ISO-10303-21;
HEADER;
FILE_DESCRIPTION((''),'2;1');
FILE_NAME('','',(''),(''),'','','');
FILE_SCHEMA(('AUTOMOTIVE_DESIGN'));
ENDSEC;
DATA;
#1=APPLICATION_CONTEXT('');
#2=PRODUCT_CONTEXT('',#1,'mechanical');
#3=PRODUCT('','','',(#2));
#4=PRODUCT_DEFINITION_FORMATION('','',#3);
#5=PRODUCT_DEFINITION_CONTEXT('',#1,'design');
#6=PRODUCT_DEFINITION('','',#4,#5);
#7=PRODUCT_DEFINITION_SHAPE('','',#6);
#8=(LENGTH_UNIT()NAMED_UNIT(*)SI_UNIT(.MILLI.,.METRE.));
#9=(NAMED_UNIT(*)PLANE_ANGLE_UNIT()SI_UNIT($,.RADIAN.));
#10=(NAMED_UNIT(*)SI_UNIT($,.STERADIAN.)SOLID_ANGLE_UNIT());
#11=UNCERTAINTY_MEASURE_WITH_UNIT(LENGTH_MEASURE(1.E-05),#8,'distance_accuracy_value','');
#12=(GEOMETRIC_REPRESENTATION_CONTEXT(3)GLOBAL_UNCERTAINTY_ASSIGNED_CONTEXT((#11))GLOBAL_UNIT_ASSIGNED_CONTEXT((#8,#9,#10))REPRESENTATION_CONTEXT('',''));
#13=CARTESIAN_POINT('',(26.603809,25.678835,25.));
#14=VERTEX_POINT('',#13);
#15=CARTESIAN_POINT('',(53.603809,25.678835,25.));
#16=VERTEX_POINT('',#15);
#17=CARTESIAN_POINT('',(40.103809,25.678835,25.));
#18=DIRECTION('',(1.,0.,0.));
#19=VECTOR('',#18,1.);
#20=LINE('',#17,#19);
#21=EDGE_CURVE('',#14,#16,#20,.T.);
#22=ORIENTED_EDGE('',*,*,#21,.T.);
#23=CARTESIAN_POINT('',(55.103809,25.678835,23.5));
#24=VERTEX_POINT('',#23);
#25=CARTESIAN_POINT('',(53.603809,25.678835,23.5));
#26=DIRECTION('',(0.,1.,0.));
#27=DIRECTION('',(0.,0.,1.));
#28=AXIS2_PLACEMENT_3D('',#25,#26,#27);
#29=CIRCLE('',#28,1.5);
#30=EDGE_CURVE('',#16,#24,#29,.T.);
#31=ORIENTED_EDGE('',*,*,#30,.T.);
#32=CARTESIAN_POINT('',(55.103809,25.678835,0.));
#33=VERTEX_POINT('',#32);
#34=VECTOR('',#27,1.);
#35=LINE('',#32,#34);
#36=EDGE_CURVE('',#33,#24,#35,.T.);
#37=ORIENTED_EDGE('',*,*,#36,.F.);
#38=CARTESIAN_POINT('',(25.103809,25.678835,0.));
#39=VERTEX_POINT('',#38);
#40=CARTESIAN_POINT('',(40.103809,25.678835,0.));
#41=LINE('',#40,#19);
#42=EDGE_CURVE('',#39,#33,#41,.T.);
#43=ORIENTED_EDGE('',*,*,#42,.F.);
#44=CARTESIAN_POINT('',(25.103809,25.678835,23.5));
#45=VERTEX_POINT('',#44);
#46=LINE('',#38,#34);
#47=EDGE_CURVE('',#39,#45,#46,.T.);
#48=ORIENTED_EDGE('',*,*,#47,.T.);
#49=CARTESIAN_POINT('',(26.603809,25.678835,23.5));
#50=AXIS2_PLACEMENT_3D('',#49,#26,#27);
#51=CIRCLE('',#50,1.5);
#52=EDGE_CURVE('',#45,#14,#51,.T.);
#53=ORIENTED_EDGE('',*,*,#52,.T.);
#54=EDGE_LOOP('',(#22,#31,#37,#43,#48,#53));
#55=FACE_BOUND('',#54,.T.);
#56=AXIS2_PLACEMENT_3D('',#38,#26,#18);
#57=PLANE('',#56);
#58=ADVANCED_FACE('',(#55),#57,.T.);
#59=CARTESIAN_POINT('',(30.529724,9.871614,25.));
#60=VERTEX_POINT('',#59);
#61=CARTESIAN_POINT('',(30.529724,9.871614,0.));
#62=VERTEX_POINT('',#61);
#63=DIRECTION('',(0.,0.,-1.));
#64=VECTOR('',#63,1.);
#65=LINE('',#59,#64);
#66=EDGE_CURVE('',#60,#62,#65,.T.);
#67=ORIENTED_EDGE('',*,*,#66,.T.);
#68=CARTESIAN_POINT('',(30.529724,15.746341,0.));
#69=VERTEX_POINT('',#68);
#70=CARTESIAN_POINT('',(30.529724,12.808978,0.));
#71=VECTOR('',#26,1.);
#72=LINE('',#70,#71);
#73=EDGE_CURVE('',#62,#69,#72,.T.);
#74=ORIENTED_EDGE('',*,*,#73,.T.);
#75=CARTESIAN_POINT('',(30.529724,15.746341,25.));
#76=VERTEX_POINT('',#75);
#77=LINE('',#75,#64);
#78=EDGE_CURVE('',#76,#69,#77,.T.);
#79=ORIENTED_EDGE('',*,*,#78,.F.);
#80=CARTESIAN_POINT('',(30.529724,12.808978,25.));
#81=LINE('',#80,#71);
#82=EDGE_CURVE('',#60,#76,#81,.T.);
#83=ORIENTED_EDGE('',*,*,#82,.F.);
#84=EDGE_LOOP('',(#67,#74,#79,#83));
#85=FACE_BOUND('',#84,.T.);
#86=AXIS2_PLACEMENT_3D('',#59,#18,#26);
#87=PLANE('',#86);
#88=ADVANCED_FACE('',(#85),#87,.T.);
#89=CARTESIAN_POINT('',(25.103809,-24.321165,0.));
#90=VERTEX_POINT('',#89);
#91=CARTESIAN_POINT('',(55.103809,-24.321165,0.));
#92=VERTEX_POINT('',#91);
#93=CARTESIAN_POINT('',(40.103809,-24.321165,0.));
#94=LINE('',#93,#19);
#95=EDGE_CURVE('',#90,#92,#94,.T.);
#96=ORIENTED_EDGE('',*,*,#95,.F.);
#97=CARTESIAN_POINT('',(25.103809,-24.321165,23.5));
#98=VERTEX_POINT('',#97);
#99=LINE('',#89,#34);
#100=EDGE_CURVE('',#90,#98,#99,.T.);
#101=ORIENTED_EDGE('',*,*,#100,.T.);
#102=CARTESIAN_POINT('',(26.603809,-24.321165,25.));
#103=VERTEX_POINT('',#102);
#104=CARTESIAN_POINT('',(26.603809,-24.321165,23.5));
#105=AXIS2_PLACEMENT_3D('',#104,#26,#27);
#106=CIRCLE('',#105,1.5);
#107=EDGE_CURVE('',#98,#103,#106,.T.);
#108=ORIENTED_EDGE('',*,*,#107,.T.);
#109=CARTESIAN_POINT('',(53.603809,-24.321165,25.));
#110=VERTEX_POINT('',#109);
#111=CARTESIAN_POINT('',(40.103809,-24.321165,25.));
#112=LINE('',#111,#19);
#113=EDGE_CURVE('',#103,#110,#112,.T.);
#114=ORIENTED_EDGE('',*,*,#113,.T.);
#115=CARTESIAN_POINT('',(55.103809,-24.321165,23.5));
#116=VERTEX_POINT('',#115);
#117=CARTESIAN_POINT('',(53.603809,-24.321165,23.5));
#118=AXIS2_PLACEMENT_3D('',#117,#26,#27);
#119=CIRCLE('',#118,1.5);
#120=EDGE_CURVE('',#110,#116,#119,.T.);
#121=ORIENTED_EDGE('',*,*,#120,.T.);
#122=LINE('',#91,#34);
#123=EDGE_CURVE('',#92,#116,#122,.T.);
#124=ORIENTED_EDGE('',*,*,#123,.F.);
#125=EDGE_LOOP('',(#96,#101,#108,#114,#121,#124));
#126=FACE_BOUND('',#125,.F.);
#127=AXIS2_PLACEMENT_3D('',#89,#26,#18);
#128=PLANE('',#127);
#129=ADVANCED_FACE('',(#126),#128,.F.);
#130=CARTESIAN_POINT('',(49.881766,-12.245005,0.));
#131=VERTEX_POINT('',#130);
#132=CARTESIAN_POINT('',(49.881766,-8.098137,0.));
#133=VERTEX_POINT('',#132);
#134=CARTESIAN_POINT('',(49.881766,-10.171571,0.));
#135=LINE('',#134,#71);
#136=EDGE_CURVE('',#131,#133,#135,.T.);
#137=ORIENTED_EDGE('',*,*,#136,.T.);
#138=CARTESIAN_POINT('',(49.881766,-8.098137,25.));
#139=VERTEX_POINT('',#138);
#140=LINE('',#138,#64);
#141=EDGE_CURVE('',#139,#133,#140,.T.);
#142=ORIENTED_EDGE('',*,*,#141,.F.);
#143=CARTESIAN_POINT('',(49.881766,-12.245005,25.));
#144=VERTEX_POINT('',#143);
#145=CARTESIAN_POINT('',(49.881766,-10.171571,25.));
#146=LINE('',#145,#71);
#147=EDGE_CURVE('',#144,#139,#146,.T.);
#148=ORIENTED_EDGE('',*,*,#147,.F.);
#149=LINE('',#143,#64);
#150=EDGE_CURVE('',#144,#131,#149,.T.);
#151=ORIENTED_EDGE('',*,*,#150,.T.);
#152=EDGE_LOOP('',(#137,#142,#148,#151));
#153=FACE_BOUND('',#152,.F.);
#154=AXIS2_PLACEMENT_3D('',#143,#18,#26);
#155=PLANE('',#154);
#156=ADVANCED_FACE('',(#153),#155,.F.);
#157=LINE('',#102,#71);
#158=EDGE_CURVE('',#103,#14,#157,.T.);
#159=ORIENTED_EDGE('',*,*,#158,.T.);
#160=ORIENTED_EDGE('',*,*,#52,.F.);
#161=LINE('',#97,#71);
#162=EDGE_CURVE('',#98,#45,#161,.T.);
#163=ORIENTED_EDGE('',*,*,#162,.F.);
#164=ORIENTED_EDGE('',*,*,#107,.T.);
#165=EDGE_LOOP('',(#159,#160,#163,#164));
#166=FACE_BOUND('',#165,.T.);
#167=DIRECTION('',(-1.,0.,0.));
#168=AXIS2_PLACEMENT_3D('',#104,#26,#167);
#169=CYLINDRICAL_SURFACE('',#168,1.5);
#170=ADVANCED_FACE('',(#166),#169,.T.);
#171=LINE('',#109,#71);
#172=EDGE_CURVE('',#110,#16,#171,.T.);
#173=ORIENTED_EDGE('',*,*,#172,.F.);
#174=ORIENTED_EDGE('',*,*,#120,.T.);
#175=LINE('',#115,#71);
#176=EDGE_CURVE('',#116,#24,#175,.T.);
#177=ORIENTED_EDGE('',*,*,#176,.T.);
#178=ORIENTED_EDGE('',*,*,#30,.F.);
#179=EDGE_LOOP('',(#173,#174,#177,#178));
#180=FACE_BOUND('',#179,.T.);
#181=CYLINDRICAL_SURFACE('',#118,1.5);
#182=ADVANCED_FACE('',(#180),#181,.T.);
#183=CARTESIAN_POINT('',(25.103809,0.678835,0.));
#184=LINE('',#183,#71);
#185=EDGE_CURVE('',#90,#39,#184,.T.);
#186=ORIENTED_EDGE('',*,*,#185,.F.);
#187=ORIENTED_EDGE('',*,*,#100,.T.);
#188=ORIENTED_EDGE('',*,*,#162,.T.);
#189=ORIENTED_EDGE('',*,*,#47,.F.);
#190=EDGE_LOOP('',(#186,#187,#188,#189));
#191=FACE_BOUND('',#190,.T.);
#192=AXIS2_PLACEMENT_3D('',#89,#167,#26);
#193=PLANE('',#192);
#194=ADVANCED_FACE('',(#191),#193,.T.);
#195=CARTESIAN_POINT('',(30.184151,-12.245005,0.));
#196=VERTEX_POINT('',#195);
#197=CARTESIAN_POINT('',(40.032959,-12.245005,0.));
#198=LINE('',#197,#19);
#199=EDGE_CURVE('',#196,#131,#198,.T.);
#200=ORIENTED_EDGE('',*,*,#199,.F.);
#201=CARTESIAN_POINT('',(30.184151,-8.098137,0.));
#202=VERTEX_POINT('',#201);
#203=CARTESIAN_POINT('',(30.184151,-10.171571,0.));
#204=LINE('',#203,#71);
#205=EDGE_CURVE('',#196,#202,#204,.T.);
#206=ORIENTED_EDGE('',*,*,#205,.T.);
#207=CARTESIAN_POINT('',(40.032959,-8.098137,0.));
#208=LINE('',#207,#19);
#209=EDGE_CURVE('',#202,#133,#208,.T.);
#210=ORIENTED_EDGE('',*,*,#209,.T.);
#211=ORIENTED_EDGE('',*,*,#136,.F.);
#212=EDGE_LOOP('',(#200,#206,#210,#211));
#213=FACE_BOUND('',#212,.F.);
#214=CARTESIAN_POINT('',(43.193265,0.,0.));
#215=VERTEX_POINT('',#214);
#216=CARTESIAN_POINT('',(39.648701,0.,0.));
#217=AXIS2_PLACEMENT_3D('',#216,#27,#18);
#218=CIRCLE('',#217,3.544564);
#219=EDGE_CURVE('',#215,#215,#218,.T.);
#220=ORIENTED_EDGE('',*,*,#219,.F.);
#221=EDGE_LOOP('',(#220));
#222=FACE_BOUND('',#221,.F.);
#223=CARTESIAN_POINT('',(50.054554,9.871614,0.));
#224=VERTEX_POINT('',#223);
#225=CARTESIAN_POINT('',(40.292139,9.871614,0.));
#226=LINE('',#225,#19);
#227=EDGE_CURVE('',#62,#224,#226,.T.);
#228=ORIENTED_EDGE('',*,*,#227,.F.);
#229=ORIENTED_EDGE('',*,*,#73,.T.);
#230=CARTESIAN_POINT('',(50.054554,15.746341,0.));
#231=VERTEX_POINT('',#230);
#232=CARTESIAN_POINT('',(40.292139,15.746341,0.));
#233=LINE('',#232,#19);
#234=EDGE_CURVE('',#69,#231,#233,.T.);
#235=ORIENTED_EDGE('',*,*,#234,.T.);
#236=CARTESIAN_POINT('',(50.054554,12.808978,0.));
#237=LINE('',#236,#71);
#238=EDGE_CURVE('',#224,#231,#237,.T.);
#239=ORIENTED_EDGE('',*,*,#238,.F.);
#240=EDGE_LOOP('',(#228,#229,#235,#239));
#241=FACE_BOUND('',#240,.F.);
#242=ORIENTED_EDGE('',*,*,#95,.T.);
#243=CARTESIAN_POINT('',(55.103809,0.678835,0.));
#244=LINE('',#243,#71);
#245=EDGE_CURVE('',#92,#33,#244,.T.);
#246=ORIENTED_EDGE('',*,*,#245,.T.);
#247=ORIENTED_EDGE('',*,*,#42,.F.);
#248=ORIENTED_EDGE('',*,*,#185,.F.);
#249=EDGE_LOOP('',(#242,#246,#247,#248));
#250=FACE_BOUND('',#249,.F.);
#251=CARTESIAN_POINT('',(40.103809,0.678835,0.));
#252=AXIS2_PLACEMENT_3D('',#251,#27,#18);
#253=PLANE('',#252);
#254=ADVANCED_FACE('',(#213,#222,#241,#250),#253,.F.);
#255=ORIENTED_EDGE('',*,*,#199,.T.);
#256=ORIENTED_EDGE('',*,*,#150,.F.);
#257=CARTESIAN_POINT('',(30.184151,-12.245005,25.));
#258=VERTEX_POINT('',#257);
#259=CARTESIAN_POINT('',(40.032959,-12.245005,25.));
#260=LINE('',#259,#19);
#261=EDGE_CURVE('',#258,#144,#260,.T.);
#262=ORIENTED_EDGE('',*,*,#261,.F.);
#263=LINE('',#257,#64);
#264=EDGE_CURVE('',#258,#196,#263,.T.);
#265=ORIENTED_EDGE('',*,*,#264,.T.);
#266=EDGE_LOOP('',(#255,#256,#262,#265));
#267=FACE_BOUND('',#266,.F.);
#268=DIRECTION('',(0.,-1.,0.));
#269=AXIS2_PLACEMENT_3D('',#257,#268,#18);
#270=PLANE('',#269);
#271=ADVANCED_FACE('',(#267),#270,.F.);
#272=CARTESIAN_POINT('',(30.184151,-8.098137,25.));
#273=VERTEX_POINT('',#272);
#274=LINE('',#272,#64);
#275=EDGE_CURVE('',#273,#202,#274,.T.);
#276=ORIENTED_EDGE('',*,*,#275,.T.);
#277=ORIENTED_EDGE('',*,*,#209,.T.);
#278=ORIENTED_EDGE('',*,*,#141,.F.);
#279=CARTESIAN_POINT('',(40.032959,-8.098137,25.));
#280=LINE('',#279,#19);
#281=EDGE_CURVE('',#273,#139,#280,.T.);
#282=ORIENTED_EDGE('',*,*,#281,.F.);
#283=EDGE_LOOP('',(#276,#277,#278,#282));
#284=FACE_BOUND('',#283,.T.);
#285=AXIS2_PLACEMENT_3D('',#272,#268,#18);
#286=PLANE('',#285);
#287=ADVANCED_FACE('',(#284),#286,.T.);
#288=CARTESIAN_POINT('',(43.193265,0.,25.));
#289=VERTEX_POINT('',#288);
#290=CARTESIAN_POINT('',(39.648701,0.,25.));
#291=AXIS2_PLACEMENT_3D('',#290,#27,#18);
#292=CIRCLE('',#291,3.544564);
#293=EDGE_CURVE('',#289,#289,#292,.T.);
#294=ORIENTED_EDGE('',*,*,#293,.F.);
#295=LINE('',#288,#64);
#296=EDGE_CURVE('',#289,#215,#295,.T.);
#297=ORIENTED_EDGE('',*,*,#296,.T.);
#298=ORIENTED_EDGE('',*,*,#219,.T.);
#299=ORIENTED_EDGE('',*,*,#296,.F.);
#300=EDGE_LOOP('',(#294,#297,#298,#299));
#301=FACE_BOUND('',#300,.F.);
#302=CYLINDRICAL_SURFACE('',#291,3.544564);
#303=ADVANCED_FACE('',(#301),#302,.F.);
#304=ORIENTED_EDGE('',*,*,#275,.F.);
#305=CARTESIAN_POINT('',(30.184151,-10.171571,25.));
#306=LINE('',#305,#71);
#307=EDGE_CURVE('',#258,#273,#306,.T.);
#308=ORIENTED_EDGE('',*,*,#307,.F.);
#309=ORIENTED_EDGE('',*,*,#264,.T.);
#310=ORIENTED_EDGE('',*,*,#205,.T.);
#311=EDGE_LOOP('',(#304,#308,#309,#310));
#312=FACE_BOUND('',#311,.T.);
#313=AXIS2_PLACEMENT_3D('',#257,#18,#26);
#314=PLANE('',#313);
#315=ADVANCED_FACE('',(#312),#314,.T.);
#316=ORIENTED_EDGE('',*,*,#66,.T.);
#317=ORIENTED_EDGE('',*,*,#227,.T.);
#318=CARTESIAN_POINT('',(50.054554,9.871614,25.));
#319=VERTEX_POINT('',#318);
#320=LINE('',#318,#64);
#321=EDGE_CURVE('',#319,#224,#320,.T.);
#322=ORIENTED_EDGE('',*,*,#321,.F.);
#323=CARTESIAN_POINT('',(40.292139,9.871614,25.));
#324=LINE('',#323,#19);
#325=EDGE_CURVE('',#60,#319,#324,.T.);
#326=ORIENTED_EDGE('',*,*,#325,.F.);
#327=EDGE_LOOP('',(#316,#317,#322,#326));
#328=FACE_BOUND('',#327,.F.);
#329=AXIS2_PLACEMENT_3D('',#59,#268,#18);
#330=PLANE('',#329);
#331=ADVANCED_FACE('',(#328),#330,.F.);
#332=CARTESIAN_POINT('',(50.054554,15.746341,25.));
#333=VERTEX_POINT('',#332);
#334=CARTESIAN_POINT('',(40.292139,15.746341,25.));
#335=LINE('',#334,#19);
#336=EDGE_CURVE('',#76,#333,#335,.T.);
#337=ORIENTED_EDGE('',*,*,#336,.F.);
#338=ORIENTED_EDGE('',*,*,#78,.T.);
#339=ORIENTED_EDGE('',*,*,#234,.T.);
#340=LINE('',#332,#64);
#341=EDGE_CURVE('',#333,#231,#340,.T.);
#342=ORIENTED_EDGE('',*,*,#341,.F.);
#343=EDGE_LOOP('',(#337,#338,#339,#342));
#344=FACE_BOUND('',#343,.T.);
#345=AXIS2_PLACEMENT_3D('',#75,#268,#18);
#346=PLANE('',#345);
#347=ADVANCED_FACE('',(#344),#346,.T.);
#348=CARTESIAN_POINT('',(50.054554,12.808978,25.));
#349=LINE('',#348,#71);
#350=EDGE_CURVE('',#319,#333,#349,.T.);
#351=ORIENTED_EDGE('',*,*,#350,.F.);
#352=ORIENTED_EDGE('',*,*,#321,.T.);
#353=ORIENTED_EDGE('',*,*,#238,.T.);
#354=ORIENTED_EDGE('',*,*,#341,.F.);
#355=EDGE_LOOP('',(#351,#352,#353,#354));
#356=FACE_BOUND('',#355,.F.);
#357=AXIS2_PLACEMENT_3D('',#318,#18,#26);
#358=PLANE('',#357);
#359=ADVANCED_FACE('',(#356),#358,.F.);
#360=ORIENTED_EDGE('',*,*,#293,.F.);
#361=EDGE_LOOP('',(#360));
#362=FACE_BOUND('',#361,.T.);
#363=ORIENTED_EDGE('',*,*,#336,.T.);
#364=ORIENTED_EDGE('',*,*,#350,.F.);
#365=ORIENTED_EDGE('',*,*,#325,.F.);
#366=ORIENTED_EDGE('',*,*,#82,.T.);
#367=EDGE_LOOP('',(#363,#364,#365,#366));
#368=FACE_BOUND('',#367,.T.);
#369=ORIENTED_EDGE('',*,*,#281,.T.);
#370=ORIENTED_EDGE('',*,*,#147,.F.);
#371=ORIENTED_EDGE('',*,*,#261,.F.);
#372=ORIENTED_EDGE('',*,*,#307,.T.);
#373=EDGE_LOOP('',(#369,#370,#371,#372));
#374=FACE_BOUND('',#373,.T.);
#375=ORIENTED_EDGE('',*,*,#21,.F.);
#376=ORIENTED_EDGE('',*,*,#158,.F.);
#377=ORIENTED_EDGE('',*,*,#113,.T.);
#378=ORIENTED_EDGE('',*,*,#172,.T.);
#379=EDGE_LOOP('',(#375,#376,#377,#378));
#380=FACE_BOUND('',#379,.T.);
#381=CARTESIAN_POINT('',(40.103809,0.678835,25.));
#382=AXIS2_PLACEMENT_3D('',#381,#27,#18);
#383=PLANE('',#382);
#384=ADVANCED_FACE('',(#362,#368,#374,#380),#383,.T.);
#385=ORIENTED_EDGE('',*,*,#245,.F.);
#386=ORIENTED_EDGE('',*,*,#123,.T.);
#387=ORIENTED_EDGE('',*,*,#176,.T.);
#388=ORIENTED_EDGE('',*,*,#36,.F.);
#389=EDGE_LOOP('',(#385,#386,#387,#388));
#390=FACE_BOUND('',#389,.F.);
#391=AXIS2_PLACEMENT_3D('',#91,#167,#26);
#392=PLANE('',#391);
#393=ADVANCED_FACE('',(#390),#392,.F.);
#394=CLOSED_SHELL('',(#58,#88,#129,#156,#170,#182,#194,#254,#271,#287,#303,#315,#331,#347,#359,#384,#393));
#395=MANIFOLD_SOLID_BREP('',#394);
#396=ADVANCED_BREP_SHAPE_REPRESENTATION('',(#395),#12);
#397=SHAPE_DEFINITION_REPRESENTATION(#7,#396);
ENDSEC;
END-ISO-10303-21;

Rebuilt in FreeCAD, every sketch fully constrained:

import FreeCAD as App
import Part
import Sketcher

V = App.Vector
Q = App.Units.Quantity


def edges_at(feature, points):
    """Names of the edges that pass closest to the given points."""
    edges = feature.Shape.Edges
    near = lambda p: min(range(len(edges)), key=lambda i: edges[i].distToShape(Part.Vertex(*p))[0])
    return sorted({f"Edge{near(p) + 1}" for p in points})


def add_polygon(sketch, points):
    """Adds a closed chain of lines whose ends are joined by coincident constraints."""
    first, n = sketch.GeometryCount, len(points)
    for a, b in zip(points, points[1:] + points[:1]):
        sketch.addGeometry(Part.LineSegment(App.Vector(*a, 0), App.Vector(*b, 0)), False)
    for i in range(n):
        sketch.addConstraint(Sketcher.Constraint("Coincident", first + i, 2, first + (i + 1) % n, 1))

doc = App.newDocument("Part")
params = doc.addObject("Spreadsheet::Sheet", "Params")
for row, (alias, value) in enumerate([
    ("sketch1_width", "30 mm"),
    ("sketch1_height", "50 mm"),
    ("pad1_length", "25 mm"),
    ("pad2_length", "10 mm"),
    ("pad3_length", "10 mm"),
    ("pocket1_length", "25 mm"),
    ("pocket2_length", "25 mm"),
    ("fillet_radius", "1.5 mm"),
    ("pocket3_length", "25 mm"),
], start=1):
    params.set(f"A{row}", alias)
    params.set(f"B{row}", "=" + value)
    params.setAlias(f"B{row}", alias)

body = doc.addObject("PartDesign::Body", "Body")

# Sketch on XY plane
sketch1 = doc.addObject("Sketcher::SketchObject", "Sketch")
body.addObject(sketch1)
sketch1.AttachmentSupport = (doc.XY_Plane, [""])
sketch1.MapMode = "FlatFace"
add_polygon(sketch1, [(25, 26), (25, -24), (55, -24), (55, 26)])  # lines 0-3
sketch1.addConstraint([
    Sketcher.Constraint("Vertical", 0),
    Sketcher.Constraint("Horizontal", 1),
    Sketcher.Constraint("Vertical", 2),
    Sketcher.Constraint("Horizontal", 3),
    Sketcher.Constraint("DistanceX", 1, 1, 1, 2, Q("30 mm")),
    Sketcher.Constraint("DistanceY", 0, 2, 0, 1, Q("50 mm")),
    Sketcher.Constraint("DistanceX", -1, 1, 0, 2, Q("25.103809 mm")),
    Sketcher.Constraint("DistanceY", 0, 2, -1, 1, Q("24.321165 mm")),
])
sketch1.setExpression("Constraints[8]", "Params.sketch1_width")
sketch1.setExpression("Constraints[9]", "Params.sketch1_height")
pad1 = doc.addObject("PartDesign::Pad", "Pad")
body.addObject(pad1)
pad1.Profile = sketch1
pad1.setExpression("Length", "Params.pad1_length")

# Sketch on XY plane
sketch2 = doc.addObject("Sketcher::SketchObject", "Sketch001")
body.addObject(sketch2)
sketch2.AttachmentSupport = (doc.XY_Plane, [""])
sketch2.MapMode = "FlatFace"
sketch2.AttachmentOffset = App.Placement(V(0, 0, 25), App.Rotation())
add_polygon(sketch2, [(30.2, -8.1), (30.2, -12.2), (49.9, -12.2), (49.9, -8.1)])  # lines 0-3
add_polygon(sketch2, [(30.5, 15.7), (30.5, 9.9), (50.1, 9.9), (50.1, 15.7)])  # lines 4-7
sketch2.addConstraint([
    Sketcher.Constraint("Vertical", 0),
    Sketcher.Constraint("Horizontal", 1),
    Sketcher.Constraint("Vertical", 2),
    Sketcher.Constraint("Horizontal", 3),
    Sketcher.Constraint("Vertical", 4),
    Sketcher.Constraint("Horizontal", 5),
    Sketcher.Constraint("Vertical", 6),
    Sketcher.Constraint("Horizontal", 7),
    Sketcher.Constraint("DistanceX", 5, 1, 5, 2, Q("19.52483 mm")),
    Sketcher.Constraint("DistanceX", 1, 1, 1, 2, Q("19.697615 mm")),
    Sketcher.Constraint("DistanceY", 0, 2, 0, 1, Q("4.146867 mm")),
    Sketcher.Constraint("DistanceY", 4, 2, 4, 1, Q("5.874727 mm")),
    Sketcher.Constraint("DistanceX", -1, 1, 0, 2, Q("30.184151 mm")),
    Sketcher.Constraint("DistanceY", -1, 1, 6, 2, Q("15.746341 mm")),
    Sketcher.Constraint("DistanceY", 3, 2, 4, 2, Q("17.969752 mm")),
    Sketcher.Constraint("DistanceX", -1, 1, 4, 2, Q("30.529724 mm")),
])
pad2 = doc.addObject("PartDesign::Pad", "Pad001")
body.addObject(pad2)
pad2.Profile = sketch2
pad2.setExpression("Length", "Params.pad2_length")
pad2.Reversed = True

# Sketch on XY plane
sketch3 = doc.addObject("Sketcher::SketchObject", "Sketch002")
body.addObject(sketch3)
sketch3.AttachmentSupport = (doc.XY_Plane, [""])
sketch3.MapMode = "FlatFace"
sketch3.AttachmentOffset = App.Placement(V(0, 0, 25), App.Rotation())
add_polygon(sketch3, [(30.5, 15.7), (30.5, 9.9), (50.1, 9.9), (50.1, 15.7)])  # lines 0-3
add_polygon(sketch3, [(30.2, -8.1), (30.2, -12.2), (49.9, -12.2), (49.9, -8.1)])  # lines 4-7
sketch3.addConstraint([
    Sketcher.Constraint("Vertical", 0),
    Sketcher.Constraint("Horizontal", 1),
    Sketcher.Constraint("Vertical", 2),
    Sketcher.Constraint("Horizontal", 3),
    Sketcher.Constraint("Vertical", 4),
    Sketcher.Constraint("Horizontal", 5),
    Sketcher.Constraint("Vertical", 6),
    Sketcher.Constraint("Horizontal", 7),
    Sketcher.Constraint("DistanceX", 1, 1, 1, 2, Q("19.52483 mm")),
    Sketcher.Constraint("DistanceX", 5, 1, 5, 2, Q("19.697615 mm")),
    Sketcher.Constraint("DistanceY", 0, 2, 0, 1, Q("5.874727 mm")),
    Sketcher.Constraint("DistanceY", 4, 2, 4, 1, Q("4.146867 mm")),
    Sketcher.Constraint("DistanceY", -1, 1, 2, 2, Q("15.746341 mm")),
    Sketcher.Constraint("DistanceX", -1, 1, 4, 2, Q("30.184151 mm")),
    Sketcher.Constraint("DistanceY", 4, 2, 0, 2, Q("22.116619 mm")),
    Sketcher.Constraint("DistanceX", -1, 1, 0, 2, Q("30.529724 mm")),
])
pad3 = doc.addObject("PartDesign::Pad", "Pad002")
body.addObject(pad3)
pad3.Profile = sketch3
pad3.setExpression("Length", "Params.pad3_length")
pad3.Reversed = True

# Sketch on XY plane
sketch4 = doc.addObject("Sketcher::SketchObject", "Sketch003")
body.addObject(sketch4)
sketch4.AttachmentSupport = (doc.XY_Plane, [""])
sketch4.MapMode = "FlatFace"
sketch4.AttachmentOffset = App.Placement(V(0, 0, 25), App.Rotation())
add_polygon(sketch4, [(31, 16), (31, 10), (50, 10), (50, 16)])  # lines 0-3
sketch4.addConstraint([
    Sketcher.Constraint("Vertical", 0),
    Sketcher.Constraint("Horizontal", 1),
    Sketcher.Constraint("Vertical", 2),
    Sketcher.Constraint("Horizontal", 3),
    Sketcher.Constraint("DistanceX", 1, 1, 1, 2, Q("19.52483 mm")),
    Sketcher.Constraint("DistanceY", 0, 2, 0, 1, Q("5.874727 mm")),
    Sketcher.Constraint("DistanceY", -1, 1, 2, 2, Q("15.746341 mm")),
    Sketcher.Constraint("DistanceX", -1, 1, 0, 2, Q("30.529724 mm")),
])
pocket1 = doc.addObject("PartDesign::Pocket", "Pocket")
body.addObject(pocket1)
pocket1.Profile = sketch4
pocket1.setExpression("Length", "Params.pocket1_length")

# Sketch on XY plane
sketch5 = doc.addObject("Sketcher::SketchObject", "Sketch004")
body.addObject(sketch5)
sketch5.AttachmentSupport = (doc.XY_Plane, [""])
sketch5.MapMode = "FlatFace"
sketch5.AttachmentOffset = App.Placement(V(0, 0, 25), App.Rotation())
add_polygon(sketch5, [(30.2, -8.1), (30.2, -12.2), (49.9, -12.2), (49.9, -8.1)])  # lines 0-3
sketch5.addConstraint([
    Sketcher.Constraint("Vertical", 0),
    Sketcher.Constraint("Horizontal", 1),
    Sketcher.Constraint("Vertical", 2),
    Sketcher.Constraint("Horizontal", 3),
    Sketcher.Constraint("DistanceX", 1, 1, 1, 2, Q("19.697615 mm")),
    Sketcher.Constraint("DistanceY", 0, 2, 0, 1, Q("4.146867 mm")),
    Sketcher.Constraint("DistanceX", -1, 1, 0, 2, Q("30.184151 mm")),
    Sketcher.Constraint("DistanceY", 0, 2, -1, 1, Q("12.245005 mm")),
])
pocket2 = doc.addObject("PartDesign::Pocket", "Pocket001")
body.addObject(pocket2)
pocket2.Profile = sketch5
pocket2.setExpression("Length", "Params.pocket2_length")
doc.recompute()

fillet = doc.addObject("PartDesign::Fillet", "Fillet")
body.addObject(fillet)
fillet.Base = (pocket2, edges_at(pocket2, [(55.104, 0.679, 25), (25.104, 0.679, 25)]))
fillet.setExpression("Radius", "Params.fillet_radius")

# Sketch on XY plane
sketch6 = doc.addObject("Sketcher::SketchObject", "Sketch005")
body.addObject(sketch6)
sketch6.AttachmentSupport = (doc.XY_Plane, [""])
sketch6.MapMode = "FlatFace"
sketch6.AttachmentOffset = App.Placement(V(0, 0, 25), App.Rotation())
sketch6.addGeometry(Part.Circle(V(39.6, 0, 0), V(0, 0, 1), 3.5), False)
sketch6.addConstraint([
    Sketcher.Constraint("PointOnObject", 0, 3, -1),
    Sketcher.Constraint("Diameter", 0, Q("7.089128 mm")),
    Sketcher.Constraint("DistanceX", -1, 1, 0, 3, Q("39.648701 mm")),
])
pocket3 = doc.addObject("PartDesign::Pocket", "Pocket002")
body.addObject(pocket3)
pocket3.Profile = sketch6
pocket3.setExpression("Length", "Params.pocket3_length")

doc.recompute()
